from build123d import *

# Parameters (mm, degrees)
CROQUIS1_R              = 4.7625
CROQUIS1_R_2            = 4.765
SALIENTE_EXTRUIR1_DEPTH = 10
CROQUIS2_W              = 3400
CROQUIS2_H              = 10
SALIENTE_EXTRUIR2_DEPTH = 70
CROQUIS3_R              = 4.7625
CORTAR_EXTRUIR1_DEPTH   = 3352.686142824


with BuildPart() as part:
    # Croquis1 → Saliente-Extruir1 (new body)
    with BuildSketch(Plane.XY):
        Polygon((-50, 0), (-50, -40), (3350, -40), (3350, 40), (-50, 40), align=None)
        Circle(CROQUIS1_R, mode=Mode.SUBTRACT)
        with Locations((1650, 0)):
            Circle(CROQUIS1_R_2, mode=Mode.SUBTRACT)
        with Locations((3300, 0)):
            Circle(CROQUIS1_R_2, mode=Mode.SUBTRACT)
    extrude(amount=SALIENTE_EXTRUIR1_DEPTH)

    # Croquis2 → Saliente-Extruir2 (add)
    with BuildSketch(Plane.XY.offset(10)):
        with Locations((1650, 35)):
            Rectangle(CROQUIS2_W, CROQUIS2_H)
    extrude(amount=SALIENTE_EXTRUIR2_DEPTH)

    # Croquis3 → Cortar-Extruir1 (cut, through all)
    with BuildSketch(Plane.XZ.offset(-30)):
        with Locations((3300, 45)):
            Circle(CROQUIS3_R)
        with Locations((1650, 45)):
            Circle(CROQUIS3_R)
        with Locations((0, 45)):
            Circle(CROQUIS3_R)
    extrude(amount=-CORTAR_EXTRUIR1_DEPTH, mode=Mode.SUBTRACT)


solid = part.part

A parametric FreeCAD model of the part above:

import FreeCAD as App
import Part
import Sketcher
from FreeCAD import Vector
Q = App.Units.Quantity

doc = App.newDocument("Part")
body = doc.addObject("PartDesign::Body", "Body")

# Sketch on XY plane
sketch1 = body.newObject("Sketcher::SketchObject", "Sketch")
sketch1.AttachmentSupport = (doc.getObject("XY_Plane"), [""])
sketch1.MapMode = "FlatFace"
sketch1.addGeometry([
    Part.LineSegment(Vector(-50, -40, 0), Vector(3350, -40, 0)),  # 0
    Part.LineSegment(Vector(3350, -40, 0), Vector(3350, 40, 0)),  # 1
    Part.LineSegment(Vector(3350, 40, 0), Vector(-50, 40, 0)),  # 2
    Part.LineSegment(Vector(-50, 40, 0), Vector(-50, -40, 0)),  # 3
    Part.Circle(Vector(0, 0, 0), Vector(0, 0, 1), 4.7625),  # 4
    Part.Circle(Vector(1650, 0, 0), Vector(0, 0, 1), 4.765),  # 5
    Part.Circle(Vector(3300, 0, 0), Vector(0, 0, 1), 4.765),  # 6
], False)
sketch1.addConstraint([
    Sketcher.Constraint("Coincident", 0, 2, 1, 1),
    Sketcher.Constraint("Coincident", 1, 2, 2, 1),
    Sketcher.Constraint("Coincident", 2, 2, 3, 1),
    Sketcher.Constraint("Coincident", 3, 2, 0, 1),
    Sketcher.Constraint("Horizontal", 0),
    Sketcher.Constraint("Vertical", 1),
    Sketcher.Constraint("Horizontal", 2),
    Sketcher.Constraint("Vertical", 3),
    Sketcher.Constraint("Coincident", 4, 3, -1, 1),
    Sketcher.Constraint("Equal", 5, 6),
    Sketcher.Constraint("PointOnObject", 5, 3, -1),
    Sketcher.Constraint("PointOnObject", 6, 3, -1),
    Sketcher.Constraint("Diameter", 5, Q("9.53 mm")),
    Sketcher.Constraint("DistanceX", 0, 1, 0, 2, Q("3400 mm")),
    Sketcher.Constraint("DistanceY", 1, 1, 1, 2, Q("80 mm")),
    Sketcher.Constraint("Diameter", 4, Q("9.525 mm")),
    Sketcher.Constraint("DistanceX", -1, 1, 5, 3, Q("1650 mm")),
    Sketcher.Constraint("DistanceX", -1, 1, 6, 3, Q("3300 mm")),
    Sketcher.Constraint("DistanceX", -1, 1, 0, 2, Q("3350 mm")),
    Sketcher.Constraint("DistanceY", 0, 2, -1, 1, Q("40 mm")),
])
pad1 = body.newObject("PartDesign::Pad", "Pad")
pad1.Profile = sketch1
pad1.Length = 10

# Sketch on XY plane
sketch2 = body.newObject("Sketcher::SketchObject", "Sketch001")
sketch2.AttachmentSupport = (doc.getObject("XY_Plane"), [""])
sketch2.MapMode = "FlatFace"
sketch2.AttachmentOffset = App.Placement(Vector(0, 0, 10), App.Rotation())
sketch2.addGeometry([
    Part.LineSegment(Vector(-50, 40, 0), Vector(-50, 30, 0)),
    Part.LineSegment(Vector(-50, 30, 0), Vector(3350, 30, 0)),
    Part.LineSegment(Vector(3350, 30, 0), Vector(3350, 40, 0)),
    Part.LineSegment(Vector(3350, 40, 0), Vector(-50, 40, 0)),
], False)
sketch2.addConstraint([
    Sketcher.Constraint("Coincident", 0, 2, 1, 1),
    Sketcher.Constraint("Coincident", 1, 2, 2, 1),
    Sketcher.Constraint("Coincident", 2, 2, 3, 1),
    Sketcher.Constraint("Coincident", 3, 2, 0, 1),
    Sketcher.Constraint("Vertical", 0),
    Sketcher.Constraint("Horizontal", 1),
    Sketcher.Constraint("Vertical", 2),
    Sketcher.Constraint("Horizontal", 3),
    Sketcher.Constraint("DistanceX", 1, 1, 1, 2, Q("3400 mm")),
    Sketcher.Constraint("DistanceY", 0, 2, 0, 1, Q("10 mm")),
    Sketcher.Constraint("DistanceX", 0, 2, -1, 1, Q("50 mm")),
    Sketcher.Constraint("DistanceY", -1, 1, 0, 2, Q("30 mm")),
])
pad2 = body.newObject("PartDesign::Pad", "Pad001")
pad2.Profile = sketch2
pad2.Length = 70

# Sketch on XZ plane
sketch3 = body.newObject("Sketcher::SketchObject", "Sketch002")
sketch3.AttachmentSupport = (doc.getObject("XZ_Plane"), [""])
sketch3.MapMode = "FlatFace"
sketch3.AttachmentOffset = App.Placement(Vector(0, 0, -30), App.Rotation())
sketch3.addGeometry([
    Part.Circle(Vector(3300, 45, 0), Vector(0, 0, 1), 4.7625),
    Part.Circle(Vector(1650, 45, 0), Vector(0, 0, 1), 4.7625),
    Part.Circle(Vector(0, 45, 0), Vector(0, 0, 1), 4.7625),
], False)
sketch3.addConstraint([
    Sketcher.Constraint("Equal", 0, 1),
    Sketcher.Constraint("Equal", 1, 2),
    Sketcher.Constraint("PointOnObject", 2, 3, -2),
    Sketcher.Constraint("Horizontal", 0, 3, 1, 3),
    Sketcher.Constraint("Horizontal", 1, 3, 2, 3),
    Sketcher.Constraint("Diameter", 0, Q("9.525 mm")),
    Sketcher.Constraint("DistanceX", -1, 1, 0, 3, Q("3300 mm")),
    Sketcher.Constraint("DistanceY", -1, 1, 0, 3, Q("45 mm")),
    Sketcher.Constraint("DistanceX", -1, 1, 1, 3, Q("1650 mm")),
])
pocket1 = body.newObject("PartDesign::Pocket", "Pocket")
pocket1.Profile = sketch3
pocket1.Type = "ThroughAll"

doc.recompute()
